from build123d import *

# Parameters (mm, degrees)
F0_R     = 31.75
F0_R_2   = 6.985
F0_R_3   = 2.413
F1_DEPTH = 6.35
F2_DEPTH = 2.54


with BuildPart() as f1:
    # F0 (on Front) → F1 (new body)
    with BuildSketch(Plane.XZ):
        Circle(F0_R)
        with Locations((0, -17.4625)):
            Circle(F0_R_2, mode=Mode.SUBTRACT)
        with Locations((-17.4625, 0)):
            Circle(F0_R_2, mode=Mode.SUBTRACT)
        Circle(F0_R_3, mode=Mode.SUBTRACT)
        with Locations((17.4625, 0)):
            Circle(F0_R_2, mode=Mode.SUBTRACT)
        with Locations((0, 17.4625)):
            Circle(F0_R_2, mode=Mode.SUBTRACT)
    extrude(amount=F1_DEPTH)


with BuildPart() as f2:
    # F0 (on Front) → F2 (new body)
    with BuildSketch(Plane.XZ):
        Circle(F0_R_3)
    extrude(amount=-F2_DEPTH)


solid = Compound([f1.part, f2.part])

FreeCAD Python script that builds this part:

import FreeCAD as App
import Part
import Sketcher

V = App.Vector
Q = App.Units.Quantity

doc = App.newDocument("Part")
body = doc.addObject("PartDesign::Body", "Body")

sketch1 = doc.addObject("Sketcher::SketchObject", "Sketch")
body.addObject(sketch1)
sketch1.AttachmentSupport = (doc.XZ_Plane, [""])
sketch1.MapMode = "FlatFace"
sketch1.addGeometry(Part.Circle(V(0, 0, 0), V(0, 0, 1), 31.8), False)
sketch1.addGeometry(Part.Circle(V(0, -17.5, 0), V(0, 0, 1), 7), False)
sketch1.addGeometry(Part.Circle(V(-17.5, 0, 0), V(0, 0, 1), 7), False)
sketch1.addGeometry(Part.Circle(V(0, 0, 0), V(0, 0, 1), 2.4), False)
sketch1.addGeometry(Part.Circle(V(17.5, 0, 0), V(0, 0, 1), 7), False)
sketch1.addGeometry(Part.Circle(V(0, 17.5, 0), V(0, 0, 1), 7), False)
sketch1.addConstraint(Sketcher.Constraint("Coincident", 0, 3, -1, 1))
sketch1.addConstraint(Sketcher.Constraint("Coincident", 3, 3, -1, 1))
sketch1.addConstraint(Sketcher.Constraint("Equal", 1, 2))
sketch1.addConstraint(Sketcher.Constraint("Equal", 2, 4))
sketch1.addConstraint(Sketcher.Constraint("Equal", 4, 5))
sketch1.addConstraint(Sketcher.Constraint("Symmetric", 2, 3, 4, 3, -1, 1))
sketch1.addConstraint(Sketcher.Constraint("Symmetric", 1, 3, 5, 3, -1, 1))
sketch1.addConstraint(Sketcher.Constraint("PointOnObject", 1, 3, -2))
sketch1.addConstraint(Sketcher.Constraint("PointOnObject", 2, 3, -1))
sketch1.addConstraint(Sketcher.Constraint("Diameter", 0, Q("2.5 in")))
sketch1.addConstraint(Sketcher.Constraint("Diameter", 1, Q("0.55 in")))
sketch1.addConstraint(Sketcher.Constraint("Diameter", 3, Q("0.19 in")))
sketch1.addConstraint(Sketcher.Constraint("DistanceY", 1, 3, -1, 1, Q("0.6875 in")))
sketch1.addConstraint(Sketcher.Constraint("DistanceX", 2, 3, -1, 1, Q("0.6875 in")))
pad1 = doc.addObject("PartDesign::Pad", "Pad")
body.addObject(pad1)
pad1.Profile = sketch1
pad1.Length = Q("0.25 in")
body2 = doc.addObject("PartDesign::Body", "Body001")

sketch2 = doc.addObject("Sketcher::SketchObject", "Sketch001")
body2.addObject(sketch2)
sketch2.AttachmentSupport = (doc.getObject("XZ_Plane001"), [""])
sketch2.MapMode = "FlatFace"
sketch2.addGeometry(Part.Circle(V(0, 0, 0), V(0, 0, 1), 2.4), False)
sketch2.addConstraint(Sketcher.Constraint("Coincident", 0, 3, -1, 1))
sketch2.addConstraint(Sketcher.Constraint("Diameter", 0, Q("0.19 in")))
pad2 = doc.addObject("PartDesign::Pad", "Pad001")
body2.addObject(pad2)
pad2.Profile = sketch2
pad2.Length = Q("0.1 in")
pad2.Reversed = True

doc.recompute()
